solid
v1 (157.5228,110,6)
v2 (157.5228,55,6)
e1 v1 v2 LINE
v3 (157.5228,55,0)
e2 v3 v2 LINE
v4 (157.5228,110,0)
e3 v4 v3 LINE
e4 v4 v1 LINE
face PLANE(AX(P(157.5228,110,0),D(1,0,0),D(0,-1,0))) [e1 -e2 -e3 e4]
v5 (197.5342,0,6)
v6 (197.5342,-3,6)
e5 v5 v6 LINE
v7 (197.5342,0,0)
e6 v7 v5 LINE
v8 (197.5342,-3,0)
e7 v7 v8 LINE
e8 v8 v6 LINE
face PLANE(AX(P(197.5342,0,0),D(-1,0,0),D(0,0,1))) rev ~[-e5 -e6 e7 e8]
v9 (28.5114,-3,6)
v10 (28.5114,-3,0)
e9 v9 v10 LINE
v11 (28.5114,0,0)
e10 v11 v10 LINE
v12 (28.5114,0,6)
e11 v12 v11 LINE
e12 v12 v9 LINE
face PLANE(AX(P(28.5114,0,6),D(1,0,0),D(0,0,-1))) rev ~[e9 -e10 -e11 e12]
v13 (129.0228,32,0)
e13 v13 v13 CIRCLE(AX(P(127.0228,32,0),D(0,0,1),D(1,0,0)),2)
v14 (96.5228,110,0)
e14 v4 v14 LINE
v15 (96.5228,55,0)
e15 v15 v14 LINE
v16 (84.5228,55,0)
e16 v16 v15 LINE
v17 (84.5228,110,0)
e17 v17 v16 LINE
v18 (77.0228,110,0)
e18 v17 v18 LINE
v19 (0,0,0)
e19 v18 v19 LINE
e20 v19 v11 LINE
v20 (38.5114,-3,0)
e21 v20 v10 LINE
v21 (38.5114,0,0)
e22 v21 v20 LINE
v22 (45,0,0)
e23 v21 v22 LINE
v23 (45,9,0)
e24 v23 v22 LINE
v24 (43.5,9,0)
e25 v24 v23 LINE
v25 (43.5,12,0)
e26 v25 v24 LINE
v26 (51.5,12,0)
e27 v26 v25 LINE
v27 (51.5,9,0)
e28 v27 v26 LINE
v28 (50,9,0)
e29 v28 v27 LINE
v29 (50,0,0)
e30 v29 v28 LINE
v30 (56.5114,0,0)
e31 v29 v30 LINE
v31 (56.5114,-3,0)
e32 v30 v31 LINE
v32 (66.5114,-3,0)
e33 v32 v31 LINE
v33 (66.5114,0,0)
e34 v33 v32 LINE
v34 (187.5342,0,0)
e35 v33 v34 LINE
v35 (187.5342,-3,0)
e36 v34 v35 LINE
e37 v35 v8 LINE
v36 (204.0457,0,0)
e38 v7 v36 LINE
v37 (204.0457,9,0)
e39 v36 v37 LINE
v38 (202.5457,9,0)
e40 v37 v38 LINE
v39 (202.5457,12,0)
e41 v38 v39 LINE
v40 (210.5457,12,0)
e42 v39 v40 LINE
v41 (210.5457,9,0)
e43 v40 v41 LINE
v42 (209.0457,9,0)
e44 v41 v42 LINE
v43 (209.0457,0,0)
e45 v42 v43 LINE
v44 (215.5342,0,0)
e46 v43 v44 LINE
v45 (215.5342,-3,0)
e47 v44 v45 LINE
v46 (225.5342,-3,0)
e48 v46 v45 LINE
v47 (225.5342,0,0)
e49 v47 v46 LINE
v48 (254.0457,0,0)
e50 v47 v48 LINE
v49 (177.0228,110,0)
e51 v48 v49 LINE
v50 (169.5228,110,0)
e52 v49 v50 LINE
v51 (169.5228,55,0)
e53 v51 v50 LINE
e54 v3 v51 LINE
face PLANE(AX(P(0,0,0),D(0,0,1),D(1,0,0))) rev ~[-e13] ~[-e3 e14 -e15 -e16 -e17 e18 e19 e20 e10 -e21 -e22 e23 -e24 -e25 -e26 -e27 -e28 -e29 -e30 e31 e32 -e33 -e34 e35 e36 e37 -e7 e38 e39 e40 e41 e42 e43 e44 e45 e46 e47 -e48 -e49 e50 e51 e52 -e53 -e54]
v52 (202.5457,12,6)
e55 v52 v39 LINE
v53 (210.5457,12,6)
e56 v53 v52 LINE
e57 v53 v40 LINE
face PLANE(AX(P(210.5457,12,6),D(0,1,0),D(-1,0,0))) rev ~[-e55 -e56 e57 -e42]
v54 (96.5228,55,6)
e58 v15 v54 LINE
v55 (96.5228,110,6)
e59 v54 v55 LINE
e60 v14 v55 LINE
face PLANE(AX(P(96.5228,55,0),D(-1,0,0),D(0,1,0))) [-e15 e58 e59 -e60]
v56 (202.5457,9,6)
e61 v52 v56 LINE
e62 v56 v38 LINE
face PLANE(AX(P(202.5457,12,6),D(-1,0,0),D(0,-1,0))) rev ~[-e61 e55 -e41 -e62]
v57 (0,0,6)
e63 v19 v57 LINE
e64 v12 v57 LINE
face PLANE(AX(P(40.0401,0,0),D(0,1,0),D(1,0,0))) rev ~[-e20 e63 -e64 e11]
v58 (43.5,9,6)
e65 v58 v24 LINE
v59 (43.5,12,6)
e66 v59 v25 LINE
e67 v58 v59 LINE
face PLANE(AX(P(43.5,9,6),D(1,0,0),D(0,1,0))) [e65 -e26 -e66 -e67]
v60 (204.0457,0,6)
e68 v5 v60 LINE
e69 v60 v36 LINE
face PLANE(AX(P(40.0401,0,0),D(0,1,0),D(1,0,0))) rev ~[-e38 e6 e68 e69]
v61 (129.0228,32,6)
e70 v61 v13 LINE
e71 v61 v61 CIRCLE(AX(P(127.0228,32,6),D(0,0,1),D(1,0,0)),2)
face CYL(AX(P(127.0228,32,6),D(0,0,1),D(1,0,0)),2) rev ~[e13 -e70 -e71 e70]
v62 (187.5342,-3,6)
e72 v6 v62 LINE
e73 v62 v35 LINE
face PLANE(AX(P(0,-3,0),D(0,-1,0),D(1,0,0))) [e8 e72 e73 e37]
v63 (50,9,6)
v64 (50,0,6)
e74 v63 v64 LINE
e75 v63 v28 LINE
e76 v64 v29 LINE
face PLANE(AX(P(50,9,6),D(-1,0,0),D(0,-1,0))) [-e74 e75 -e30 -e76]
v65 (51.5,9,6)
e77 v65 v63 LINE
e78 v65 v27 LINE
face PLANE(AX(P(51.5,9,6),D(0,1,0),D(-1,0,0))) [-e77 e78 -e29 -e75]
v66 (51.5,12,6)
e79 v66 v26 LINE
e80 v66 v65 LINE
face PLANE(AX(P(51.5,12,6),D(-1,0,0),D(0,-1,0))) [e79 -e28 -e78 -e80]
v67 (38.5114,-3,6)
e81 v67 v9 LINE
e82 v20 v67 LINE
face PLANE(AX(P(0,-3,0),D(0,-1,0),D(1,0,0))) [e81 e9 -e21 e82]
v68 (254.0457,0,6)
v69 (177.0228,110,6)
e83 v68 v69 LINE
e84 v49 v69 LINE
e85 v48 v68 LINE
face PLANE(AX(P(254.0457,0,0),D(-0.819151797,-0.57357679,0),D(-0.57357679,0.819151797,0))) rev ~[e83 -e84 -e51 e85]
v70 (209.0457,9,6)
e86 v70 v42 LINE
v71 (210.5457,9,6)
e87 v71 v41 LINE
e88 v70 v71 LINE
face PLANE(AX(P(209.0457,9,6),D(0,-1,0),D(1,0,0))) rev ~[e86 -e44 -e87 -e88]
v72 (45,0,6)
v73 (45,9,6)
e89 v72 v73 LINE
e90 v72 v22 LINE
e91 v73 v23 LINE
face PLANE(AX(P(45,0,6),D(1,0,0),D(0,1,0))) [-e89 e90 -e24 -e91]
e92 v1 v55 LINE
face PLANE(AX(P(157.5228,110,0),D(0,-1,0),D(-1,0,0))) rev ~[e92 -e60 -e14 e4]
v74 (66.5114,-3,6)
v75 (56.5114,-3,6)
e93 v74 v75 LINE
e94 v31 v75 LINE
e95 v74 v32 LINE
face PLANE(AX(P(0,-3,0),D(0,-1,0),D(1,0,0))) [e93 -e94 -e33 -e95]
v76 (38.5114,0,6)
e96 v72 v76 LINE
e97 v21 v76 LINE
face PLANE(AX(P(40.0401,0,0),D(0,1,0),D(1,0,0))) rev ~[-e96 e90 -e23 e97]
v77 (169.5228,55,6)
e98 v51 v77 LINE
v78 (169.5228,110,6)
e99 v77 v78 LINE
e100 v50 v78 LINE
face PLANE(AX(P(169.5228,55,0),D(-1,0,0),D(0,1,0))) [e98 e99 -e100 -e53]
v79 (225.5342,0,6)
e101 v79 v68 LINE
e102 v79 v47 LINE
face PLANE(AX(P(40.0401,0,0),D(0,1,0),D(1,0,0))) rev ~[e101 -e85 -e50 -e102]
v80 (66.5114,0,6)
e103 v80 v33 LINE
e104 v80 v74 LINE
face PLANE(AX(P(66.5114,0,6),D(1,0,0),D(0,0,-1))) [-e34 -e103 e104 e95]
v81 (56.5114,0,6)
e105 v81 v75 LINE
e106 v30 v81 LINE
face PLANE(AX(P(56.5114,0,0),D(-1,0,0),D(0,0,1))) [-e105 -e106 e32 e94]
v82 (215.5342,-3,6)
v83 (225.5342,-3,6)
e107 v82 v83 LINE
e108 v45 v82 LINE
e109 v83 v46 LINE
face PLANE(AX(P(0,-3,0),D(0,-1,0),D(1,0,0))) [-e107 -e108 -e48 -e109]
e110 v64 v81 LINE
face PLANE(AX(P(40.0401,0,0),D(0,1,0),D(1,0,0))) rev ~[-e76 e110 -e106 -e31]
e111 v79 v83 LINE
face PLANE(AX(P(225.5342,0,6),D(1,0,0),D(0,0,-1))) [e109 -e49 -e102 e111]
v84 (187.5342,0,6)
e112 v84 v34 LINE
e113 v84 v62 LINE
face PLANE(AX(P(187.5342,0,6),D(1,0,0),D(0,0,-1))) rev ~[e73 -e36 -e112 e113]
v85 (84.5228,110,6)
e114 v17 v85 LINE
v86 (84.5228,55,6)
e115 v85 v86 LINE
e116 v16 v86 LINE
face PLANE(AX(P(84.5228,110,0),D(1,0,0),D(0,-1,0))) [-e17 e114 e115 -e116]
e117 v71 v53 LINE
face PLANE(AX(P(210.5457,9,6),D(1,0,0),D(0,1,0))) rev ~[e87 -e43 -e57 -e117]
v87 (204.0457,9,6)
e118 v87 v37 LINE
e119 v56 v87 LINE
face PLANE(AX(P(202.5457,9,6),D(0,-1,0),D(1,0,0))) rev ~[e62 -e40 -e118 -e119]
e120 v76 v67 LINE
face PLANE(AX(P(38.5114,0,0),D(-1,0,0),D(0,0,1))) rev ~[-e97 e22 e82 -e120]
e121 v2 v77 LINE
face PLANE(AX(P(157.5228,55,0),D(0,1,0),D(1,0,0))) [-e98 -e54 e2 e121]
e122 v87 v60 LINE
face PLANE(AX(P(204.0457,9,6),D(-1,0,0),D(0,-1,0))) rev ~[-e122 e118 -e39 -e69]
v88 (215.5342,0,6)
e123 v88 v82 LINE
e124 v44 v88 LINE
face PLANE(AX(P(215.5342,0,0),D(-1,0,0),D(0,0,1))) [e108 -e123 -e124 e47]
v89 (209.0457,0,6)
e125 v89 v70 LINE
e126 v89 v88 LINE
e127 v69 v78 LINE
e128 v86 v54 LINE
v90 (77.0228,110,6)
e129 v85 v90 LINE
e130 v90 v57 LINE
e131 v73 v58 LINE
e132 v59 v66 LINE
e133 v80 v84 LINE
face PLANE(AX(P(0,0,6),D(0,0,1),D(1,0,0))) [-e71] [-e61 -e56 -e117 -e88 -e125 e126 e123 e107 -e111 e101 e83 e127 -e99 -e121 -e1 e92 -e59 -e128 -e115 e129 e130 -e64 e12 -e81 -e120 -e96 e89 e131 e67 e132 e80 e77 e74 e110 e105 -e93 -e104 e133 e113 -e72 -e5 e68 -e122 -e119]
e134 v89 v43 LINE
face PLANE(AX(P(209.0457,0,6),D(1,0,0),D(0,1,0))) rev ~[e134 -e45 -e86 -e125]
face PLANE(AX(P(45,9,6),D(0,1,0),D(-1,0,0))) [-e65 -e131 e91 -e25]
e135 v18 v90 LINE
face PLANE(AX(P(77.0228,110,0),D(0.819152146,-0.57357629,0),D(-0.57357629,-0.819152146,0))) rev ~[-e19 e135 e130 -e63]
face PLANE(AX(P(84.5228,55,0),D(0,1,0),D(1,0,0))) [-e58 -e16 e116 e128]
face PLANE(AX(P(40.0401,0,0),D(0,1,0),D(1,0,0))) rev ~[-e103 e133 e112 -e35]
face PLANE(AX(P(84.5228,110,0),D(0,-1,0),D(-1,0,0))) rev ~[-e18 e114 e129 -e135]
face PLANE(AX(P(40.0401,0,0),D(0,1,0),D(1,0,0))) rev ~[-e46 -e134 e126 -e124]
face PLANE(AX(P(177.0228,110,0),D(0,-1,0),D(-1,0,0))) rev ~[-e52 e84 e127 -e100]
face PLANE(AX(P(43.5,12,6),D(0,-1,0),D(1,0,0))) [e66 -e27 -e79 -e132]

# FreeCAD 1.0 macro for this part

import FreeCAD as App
import Part
import Sketcher
Q = App.Units.Quantity

doc = App.newDocument("Part")
body = doc.addObject("PartDesign::Body", "Body")

sketch1 = doc.addObject("Sketcher::SketchObject", "Sketch")
body.addObject(sketch1)
sketch1.AttachmentSupport = (doc.XY_Plane, [""])
sketch1.MapMode = "FlatFace"
sketch1.addGeometry([
    Part.LineSegment(App.Vector(0, 0, 0), App.Vector(254.0457, 0, 0)),
    Part.LineSegment(App.Vector(254.0457, 0, 0), App.Vector(177.0228, 110, 0)),
    Part.LineSegment(App.Vector(177.0228, 110, 0), App.Vector(169.5228, 110, 0)),
    Part.LineSegment(App.Vector(169.5228, 110, 0), App.Vector(169.5228, 55, 0)),
    Part.LineSegment(App.Vector(169.5228, 55, 0), App.Vector(157.5228, 55, 0)),
    Part.LineSegment(App.Vector(157.5228, 55, 0), App.Vector(157.5228, 110, 0)),
    Part.LineSegment(App.Vector(157.5228, 110, 0), App.Vector(96.5228, 110, 0)),
    Part.LineSegment(App.Vector(96.5228, 110, 0), App.Vector(96.5228, 55, 0)),
    Part.LineSegment(App.Vector(96.5228, 55, 0), App.Vector(84.5228, 55, 0)),
    Part.LineSegment(App.Vector(84.5228, 55, 0), App.Vector(84.5228, 110, 0)),
    Part.LineSegment(App.Vector(84.5228, 110, 0), App.Vector(77.0228, 110, 0)),
    Part.LineSegment(App.Vector(77.0228, 110, 0), App.Vector(0, 0, 0)),
], False)
sketch1.addConstraint([
    Sketcher.Constraint("Coincident", 0, 2, 1, 1),
    Sketcher.Constraint("Coincident", 1, 2, 2, 1),
    Sketcher.Constraint("Coincident", 2, 2, 3, 1),
    Sketcher.Constraint("Coincident", 3, 2, 4, 1),
    Sketcher.Constraint("Coincident", 4, 2, 5, 1),
    Sketcher.Constraint("Coincident", 5, 2, 6, 1),
    Sketcher.Constraint("Coincident", 6, 2, 7, 1),
    Sketcher.Constraint("Coincident", 7, 2, 8, 1),
    Sketcher.Constraint("Coincident", 8, 2, 9, 1),
    Sketcher.Constraint("Coincident", 9, 2, 10, 1),
    Sketcher.Constraint("Coincident", 10, 2, 11, 1),
    Sketcher.Constraint("Coincident", 11, 2, 0, 1),
    Sketcher.Constraint("Horizontal", 0),
    Sketcher.Constraint("Horizontal", 2),
    Sketcher.Constraint("Vertical", 3),
    Sketcher.Constraint("Horizontal", 4),
    Sketcher.Constraint("Vertical", 5),
    Sketcher.Constraint("Horizontal", 6),
    Sketcher.Constraint("Vertical", 7),
    Sketcher.Constraint("Horizontal", 8),
    Sketcher.Constraint("Vertical", 9),
    Sketcher.Constraint("Horizontal", 10),
    Sketcher.Constraint("Coincident", 11, 2, -1, 1),
    Sketcher.Constraint("Horizontal", 2, 2, 5, 2),
    Sketcher.Constraint("Horizontal", 4, 2, 7, 2),
    Sketcher.Constraint("Horizontal", 6, 2, 9, 2),
    Sketcher.Constraint("Equal", 4, 8),
    Sketcher.Constraint("Equal", 2, 10),
    Sketcher.Constraint("Equal", 1, 11),
    Sketcher.Constraint("DistanceX", 4, 2, 4, 1, 12.0),
    Sketcher.Constraint("DistanceX", 6, 2, 6, 1, 61.0),
    Sketcher.Constraint("DistanceY", 3, 2, 3, 1, 55.0),
    Sketcher.Constraint("DistanceX", 2, 2, 2, 1, 7.5),
    Sketcher.Constraint("DistanceY", -1, 1, 1, 2, 110.0),
    Sketcher.Constraint("Angle", 1, Q("125 deg")),
])
pad1 = doc.addObject("PartDesign::Pad", "Pad")
body.addObject(pad1)
pad1.Profile = sketch1
pad1.Length = 6

sketch2 = doc.addObject("Sketcher::SketchObject", "Sketch001")
body.addObject(sketch2)
sketch2.AttachmentSupport = (doc.XY_Plane, [""])
sketch2.MapMode = "FlatFace"
sketch2.AttachmentOffset = App.Placement(App.Vector(0, 0, 6), App.Rotation())
sketch2.addGeometry([
    Part.LineSegment(App.Vector(45, 9, 0), App.Vector(45, 0, 0)),
    Part.LineSegment(App.Vector(45, 0, 0), App.Vector(50, 0, 0)),
    Part.LineSegment(App.Vector(50, 0, 0), App.Vector(50, 9, 0)),
    Part.LineSegment(App.Vector(50, 9, 0), App.Vector(51.5, 9, 0)),
    Part.LineSegment(App.Vector(51.5, 9, 0), App.Vector(51.5, 12, 0)),
    Part.LineSegment(App.Vector(51.5, 12, 0), App.Vector(43.5, 12, 0)),
    Part.LineSegment(App.Vector(43.5, 12, 0), App.Vector(43.5, 9, 0)),
    Part.LineSegment(App.Vector(43.5, 9, 0), App.Vector(45, 9, 0)),
    Part.LineSegment(App.Vector(204.0457, 9, 0), App.Vector(204.0457, 0, 0)),
    Part.LineSegment(App.Vector(204.0457, 0, 0), App.Vector(209.0457, 0, 0)),
    Part.LineSegment(App.Vector(209.0457, 0, 0), App.Vector(209.0457, 9, 0)),
    Part.LineSegment(App.Vector(209.0457, 9, 0), App.Vector(210.5457, 9, 0)),
    Part.LineSegment(App.Vector(210.5457, 9, 0), App.Vector(210.5457, 12, 0)),
    Part.LineSegment(App.Vector(210.5457, 12, 0), App.Vector(202.5457, 12, 0)),
    Part.LineSegment(App.Vector(202.5457, 12, 0), App.Vector(202.5457, 9, 0)),
    Part.LineSegment(App.Vector(202.5457, 9, 0), App.Vector(204.0457, 9, 0)),
], False)
sketch2.addConstraint([
    Sketcher.Constraint("Coincident", 0, 2, 1, 1),
    Sketcher.Constraint("Coincident", 1, 2, 2, 1),
    Sketcher.Constraint("Coincident", 2, 2, 3, 1),
    Sketcher.Constraint("Coincident", 3, 2, 4, 1),
    Sketcher.Constraint("Coincident", 4, 2, 5, 1),
    Sketcher.Constraint("Coincident", 5, 2, 6, 1),
    Sketcher.Constraint("Coincident", 6, 2, 7, 1),
    Sketcher.Constraint("Coincident", 7, 2, 0, 1),
    Sketcher.Constraint("Coincident", 8, 2, 9, 1),
    Sketcher.Constraint("Coincident", 9, 2, 10, 1),
    Sketcher.Constraint("Coincident", 10, 2, 11, 1),
    Sketcher.Constraint("Coincident", 11, 2, 12, 1),
    Sketcher.Constraint("Coincident", 12, 2, 13, 1),
    Sketcher.Constraint("Coincident", 13, 2, 14, 1),
    Sketcher.Constraint("Coincident", 14, 2, 15, 1),
    Sketcher.Constraint("Coincident", 15, 2, 8, 1),
    Sketcher.Constraint("Vertical", 0),
    Sketcher.Constraint("Horizontal", 1),
    Sketcher.Constraint("Vertical", 2),
    Sketcher.Constraint("Horizontal", 3),
    Sketcher.Constraint("Vertical", 4),
    Sketcher.Constraint("Horizontal", 5),
    Sketcher.Constraint("Vertical", 6),
    Sketcher.Constraint("Horizontal", 7),
    Sketcher.Constraint("Vertical", 8),
    Sketcher.Constraint("Horizontal", 9),
    Sketcher.Constraint("Vertical", 10),
    Sketcher.Constraint("Horizontal", 11),
    Sketcher.Constraint("Vertical", 12),
    Sketcher.Constraint("Horizontal", 13),
    Sketcher.Constraint("Vertical", 14),
    Sketcher.Constraint("Horizontal", 15),
    Sketcher.Constraint("PointOnObject", 0, 2, -1),
    Sketcher.Constraint("PointOnObject", 8, 2, -1),
    Sketcher.Constraint("Horizontal", 3, 2, 6, 2),
    Sketcher.Constraint("Horizontal", 7, 2, 10, 2),
    Sketcher.Constraint("Horizontal", 5, 2, 12, 2),
    Sketcher.Constraint("Horizontal", 11, 2, 14, 2),
    Sketcher.Constraint("Equal", 3, 7),
    Sketcher.Constraint("Equal", 1, 9),
    Sketcher.Constraint("Equal", 7, 11),
    Sketcher.Constraint("Equal", 5, 13),
    Sketcher.Constraint("DistanceX", 1, 1, 1, 2, 5.0),
    Sketcher.Constraint("DistanceX", 5, 2, 5, 1, 8.0),
    Sketcher.Constraint("DistanceY", 4, 1, 4, 2, 3.0),
    Sketcher.Constraint("DistanceX", -1, 1, 0, 2, 45.0),
    Sketcher.Constraint("DistanceY", -1, 1, 4, 2, 12.0),
    Sketcher.Constraint("DistanceX", -1, 1, 8, 2, 204.0457),
])
pocket1 = doc.addObject("PartDesign::Pocket", "Pocket")
body.addObject(pocket1)
pocket1.Profile = sketch2
pocket1.Length = 6

sketch3 = doc.addObject("Sketcher::SketchObject", "Sketch002")
body.addObject(sketch3)
sketch3.AttachmentSupport = (doc.XZ_Plane, [""])
sketch3.MapMode = "FlatFace"
sketch3.addGeometry([
    Part.LineSegment(App.Vector(66.5114, 0, 0), App.Vector(66.5114, 6, 0)),
    Part.LineSegment(App.Vector(66.5114, 6, 0), App.Vector(56.5114, 6, 0)),
    Part.LineSegment(App.Vector(56.5114, 6, 0), App.Vector(56.5114, 0, 0)),
    Part.LineSegment(App.Vector(56.5114, 0, 0), App.Vector(66.5114, 0, 0)),
    Part.LineSegment(App.Vector(187.5342, 6, 0), App.Vector(187.5342, 0, 0)),
    Part.LineSegment(App.Vector(187.5342, 0, 0), App.Vector(197.5342, 0, 0)),
    Part.LineSegment(App.Vector(197.5342, 0, 0), App.Vector(197.5342, 6, 0)),
    Part.LineSegment(App.Vector(197.5342, 6, 0), App.Vector(187.5342, 6, 0)),
    Part.LineSegment(App.Vector(38.5114, 0, 0), App.Vector(38.5114, 6, 0)),
    Part.LineSegment(App.Vector(38.5114, 6, 0), App.Vector(28.5114, 6, 0)),
    Part.LineSegment(App.Vector(28.5114, 6, 0), App.Vector(28.5114, 0, 0)),
    Part.LineSegment(App.Vector(28.5114, 0, 0), App.Vector(38.5114, 0, 0)),
    Part.LineSegment(App.Vector(225.5342, 6, 0), App.Vector(215.5342, 6, 0)),
    Part.LineSegment(App.Vector(215.5342, 6, 0), App.Vector(215.5342, 0, 0)),
    Part.LineSegment(App.Vector(215.5342, 0, 0), App.Vector(225.5342, 0, 0)),
    Part.LineSegment(App.Vector(225.5342, 0, 0), App.Vector(225.5342, 6, 0)),
], False)
sketch3.addConstraint([
    Sketcher.Constraint("Coincident", 0, 2, 1, 1),
    Sketcher.Constraint("Coincident", 1, 2, 2, 1),
    Sketcher.Constraint("Coincident", 2, 2, 3, 1),
    Sketcher.Constraint("Coincident", 3, 2, 0, 1),
    Sketcher.Constraint("Coincident", 4, 2, 5, 1),
    Sketcher.Constraint("Coincident", 5, 2, 6, 1),
    Sketcher.Constraint("Coincident", 6, 2, 7, 1),
    Sketcher.Constraint("Coincident", 7, 2, 4, 1),
    Sketcher.Constraint("Coincident", 8, 2, 9, 1),
    Sketcher.Constraint("Coincident", 9, 2, 10, 1),
    Sketcher.Constraint("Coincident", 10, 2, 11, 1),
    Sketcher.Constraint("Coincident", 11, 2, 8, 1),
    Sketcher.Constraint("Coincident", 12, 2, 13, 1),
    Sketcher.Constraint("Coincident", 13, 2, 14, 1),
    Sketcher.Constraint("Coincident", 14, 2, 15, 1),
    Sketcher.Constraint("Coincident", 15, 2, 12, 1),
    Sketcher.Constraint("Vertical", 0),
    Sketcher.Constraint("Horizontal", 1),
    Sketcher.Constraint("Vertical", 2),
    Sketcher.Constraint("Horizontal", 3),
    Sketcher.Constraint("Vertical", 4),
    Sketcher.Constraint("Horizontal", 5),
    Sketcher.Constraint("Vertical", 6),
    Sketcher.Constraint("Horizontal", 7),
    Sketcher.Constraint("Vertical", 8),
    Sketcher.Constraint("Horizontal", 9),
    Sketcher.Constraint("Vertical", 10),
    Sketcher.Constraint("Horizontal", 11),
    Sketcher.Constraint("Horizontal", 12),
    Sketcher.Constraint("Vertical", 13),
    Sketcher.Constraint("Horizontal", 14),
    Sketcher.Constraint("Vertical", 15),
    Sketcher.Constraint("PointOnObject", 2, 2, -1),
    Sketcher.Constraint("PointOnObject", 4, 2, -1),
    Sketcher.Constraint("PointOnObject", 10, 2, -1),
    Sketcher.Constraint("PointOnObject", 13, 2, -1),
    Sketcher.Constraint("Horizontal", 1, 2, 6, 2),
    Sketcher.Constraint("Horizontal", 7, 2, 8, 2),
    Sketcher.Constraint("Horizontal", 9, 2, 12, 2),
    Sketcher.Constraint("Equal", 3, 5),
    Sketcher.Constraint("Equal", 7, 9),
    Sketcher.Constraint("Equal", 11, 12),
    Sketcher.Constraint("DistanceX", 1, 2, 1, 1, 10.0),
    Sketcher.Constraint("DistanceX", 8, 2, 1, 2, 18.0),
    Sketcher.Constraint("DistanceX", 6, 2, 12, 2, 18.0),
    Sketcher.Constraint("DistanceY", 0, 1, 0, 2, 6.0),
    Sketcher.Constraint("DistanceX", -1, 1, 0, 2, 66.5114),
    Sketcher.Constraint("DistanceX", -1, 1, 4, 2, 187.5342),
])
pad2 = doc.addObject("PartDesign::Pad", "Pad001")
body.addObject(pad2)
pad2.Profile = sketch3
pad2.Length = 3

sketch4 = doc.addObject("Sketcher::SketchObject", "Sketch003")
body.addObject(sketch4)
sketch4.AttachmentSupport = (doc.XY_Plane, [""])
sketch4.MapMode = "FlatFace"
sketch4.AttachmentOffset = App.Placement(App.Vector(0, 0, 6), App.Rotation())
sketch4.addGeometry(Part.Circle(App.Vector(127.0228, 32, 0), App.Vector(0, 0, 1), 2), False)
sketch4.addConstraint([
    Sketcher.Constraint("Diameter", 0, 4.0),
    Sketcher.Constraint("DistanceY", -1, 1, 0, 3, 32.0),
    Sketcher.Constraint("DistanceX", -1, 1, 0, 3, 127.0228),
])
pocket2 = doc.addObject("PartDesign::Pocket", "Pocket001")
body.addObject(pocket2)
pocket2.Profile = sketch4
pocket2.Type = "ThroughAll"

doc.recompute()
